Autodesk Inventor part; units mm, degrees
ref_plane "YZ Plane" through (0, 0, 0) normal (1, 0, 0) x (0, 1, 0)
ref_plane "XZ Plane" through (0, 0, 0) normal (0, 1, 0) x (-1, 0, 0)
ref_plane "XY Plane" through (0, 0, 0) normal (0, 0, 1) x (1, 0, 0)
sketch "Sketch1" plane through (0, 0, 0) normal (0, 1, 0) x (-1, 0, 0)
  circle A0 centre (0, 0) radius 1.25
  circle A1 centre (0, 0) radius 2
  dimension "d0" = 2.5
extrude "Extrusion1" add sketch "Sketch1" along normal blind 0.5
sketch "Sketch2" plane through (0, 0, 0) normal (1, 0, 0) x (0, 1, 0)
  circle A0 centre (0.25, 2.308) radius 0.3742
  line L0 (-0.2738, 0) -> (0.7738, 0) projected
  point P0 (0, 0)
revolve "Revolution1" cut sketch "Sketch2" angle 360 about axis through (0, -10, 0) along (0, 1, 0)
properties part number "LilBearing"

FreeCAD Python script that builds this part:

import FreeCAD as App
import Part
import Sketcher

V = App.Vector
Q = App.Units.Quantity

doc = App.newDocument("Part")
body = doc.addObject("PartDesign::Body", "Body")

# Sketch on XZ plane
sketch1 = body.newObject("Sketcher::SketchObject", "Sketch")
sketch1.AttachmentSupport = (doc.getObject("XZ_Plane"), [""])
sketch1.MapMode = "FlatFace"
sketch1.addGeometry([
    Part.Circle(V(0, 0, 0), V(0, 0, 1), 2),
    Part.Circle(V(0, 0, 0), V(0, 0, 1), 1.25),
], False)
sketch1.addConstraint([
    Sketcher.Constraint("Coincident", 0, 3, -1, 1),
    Sketcher.Constraint("Coincident", 1, 3, -1, 1),
    Sketcher.Constraint("Diameter", 1, Q("2.5 mm")),
    Sketcher.Constraint("Diameter", 0, Q("4 mm")),
])
pad1 = body.newObject("PartDesign::Pad", "Pad")
pad1.Profile = sketch1
pad1.Length = 0.5
pad1.Reversed = True

# Sketch on YZ plane
sketch2 = body.newObject("Sketcher::SketchObject", "Sketch001")
sketch2.AttachmentSupport = (doc.getObject("YZ_Plane"), [""])
sketch2.MapMode = "FlatFace"
sketch2.addGeometry(Part.Circle(V(0.25, 2.308, 0), V(0, 0, 1), 0.3742), False)
sketch2.addConstraint([
    Sketcher.Constraint("Diameter", 0, Q("0.7484 mm")),
    Sketcher.Constraint("DistanceX", -1, 1, 0, 3, Q("0.25 mm")),
    Sketcher.Constraint("DistanceY", -1, 1, 0, 3, Q("2.308 mm")),
])
groove = body.newObject("PartDesign::Groove", "Groove")
groove.Profile = sketch2
groove.ReferenceAxis = (sketch2, ["H_Axis"])
groove.Angle = 360

doc.recompute()
